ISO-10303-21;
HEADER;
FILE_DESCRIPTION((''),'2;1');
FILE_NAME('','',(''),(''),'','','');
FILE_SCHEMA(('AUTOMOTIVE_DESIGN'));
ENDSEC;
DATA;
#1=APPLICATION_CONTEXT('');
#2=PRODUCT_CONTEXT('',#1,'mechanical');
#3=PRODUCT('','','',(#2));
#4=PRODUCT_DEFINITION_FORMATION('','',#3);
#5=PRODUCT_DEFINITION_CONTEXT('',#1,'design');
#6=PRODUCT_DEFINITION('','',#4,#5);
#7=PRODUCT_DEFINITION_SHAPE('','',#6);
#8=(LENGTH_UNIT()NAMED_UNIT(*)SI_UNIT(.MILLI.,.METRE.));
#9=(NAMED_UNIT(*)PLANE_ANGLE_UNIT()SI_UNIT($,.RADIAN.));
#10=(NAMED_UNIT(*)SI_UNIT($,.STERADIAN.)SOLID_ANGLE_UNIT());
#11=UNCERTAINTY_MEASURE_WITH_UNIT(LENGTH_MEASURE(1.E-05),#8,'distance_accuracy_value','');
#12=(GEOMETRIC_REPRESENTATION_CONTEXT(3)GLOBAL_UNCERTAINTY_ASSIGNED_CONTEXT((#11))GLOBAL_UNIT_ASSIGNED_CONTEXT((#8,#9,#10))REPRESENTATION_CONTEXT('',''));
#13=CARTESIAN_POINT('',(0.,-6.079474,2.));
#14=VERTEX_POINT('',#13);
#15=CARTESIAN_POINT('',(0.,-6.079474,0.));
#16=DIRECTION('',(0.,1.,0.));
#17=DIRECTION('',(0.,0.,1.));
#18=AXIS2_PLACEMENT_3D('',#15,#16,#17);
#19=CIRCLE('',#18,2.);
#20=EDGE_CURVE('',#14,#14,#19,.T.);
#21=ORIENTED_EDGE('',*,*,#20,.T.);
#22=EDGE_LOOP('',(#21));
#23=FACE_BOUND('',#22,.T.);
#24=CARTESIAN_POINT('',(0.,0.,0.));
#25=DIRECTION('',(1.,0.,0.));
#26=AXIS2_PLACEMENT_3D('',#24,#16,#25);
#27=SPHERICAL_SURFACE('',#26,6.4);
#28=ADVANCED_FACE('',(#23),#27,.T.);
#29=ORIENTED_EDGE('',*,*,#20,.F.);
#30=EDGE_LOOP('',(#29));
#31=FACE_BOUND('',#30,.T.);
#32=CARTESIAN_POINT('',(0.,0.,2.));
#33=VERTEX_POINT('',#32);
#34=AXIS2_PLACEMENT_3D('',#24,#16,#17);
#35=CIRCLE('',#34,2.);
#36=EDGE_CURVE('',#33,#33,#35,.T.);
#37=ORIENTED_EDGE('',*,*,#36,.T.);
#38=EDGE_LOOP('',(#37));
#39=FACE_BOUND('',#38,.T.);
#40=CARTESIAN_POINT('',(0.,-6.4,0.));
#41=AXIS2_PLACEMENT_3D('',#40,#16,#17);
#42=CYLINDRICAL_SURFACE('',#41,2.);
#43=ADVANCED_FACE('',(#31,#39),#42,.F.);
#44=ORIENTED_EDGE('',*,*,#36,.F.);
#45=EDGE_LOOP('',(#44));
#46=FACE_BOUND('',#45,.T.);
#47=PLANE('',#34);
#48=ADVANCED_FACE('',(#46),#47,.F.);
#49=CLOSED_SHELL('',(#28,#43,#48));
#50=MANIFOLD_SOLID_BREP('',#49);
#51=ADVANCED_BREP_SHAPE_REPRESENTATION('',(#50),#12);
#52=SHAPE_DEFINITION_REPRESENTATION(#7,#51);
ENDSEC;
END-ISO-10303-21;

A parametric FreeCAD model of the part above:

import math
import FreeCAD as App
import Part
import Sketcher
from FreeCAD import Vector
Q = App.Units.Quantity

doc = App.newDocument("Part")
body = doc.addObject("PartDesign::Body", "Body")

sketch1 = body.newObject("Sketcher::SketchObject", "Sketch")
sketch1.AttachmentSupport = (doc.getObject("XY_Plane"), [""])
sketch1.MapMode = "FlatFace"
sketch1.addGeometry([
    Part.LineSegment(Vector(0, 6.4, 0), Vector(0, -6.4, 0)),
    Part.ArcOfCircle(Part.Circle(Vector(0, 0, 0), Vector(0, 0, 1), 6.4), math.radians(-90), math.radians(90)),
], False)
sketch1.addConstraint([
    Sketcher.Constraint("Coincident", 0, 1, 1, 2),
    Sketcher.Constraint("Coincident", 1, 1, 0, 2),
    Sketcher.Constraint("Vertical", 0),
    Sketcher.Constraint("Coincident", 1, 3, -1, 1),
    Sketcher.Constraint("PointOnObject", 0, 1, -2),
    Sketcher.Constraint("Radius", 1, Q("6.4 mm")),
])
revolution = body.newObject("PartDesign::Revolution", "Revolution")
revolution.Profile = sketch1
revolution.ReferenceAxis = (sketch1, ["V_Axis"])
revolution.Angle = 360

sketch2 = body.newObject("Sketcher::SketchObject", "Sketch001")
sketch2.AttachmentSupport = (doc.getObject("XZ_Plane"), [""])
sketch2.MapMode = "FlatFace"
sketch2.addGeometry(Part.Circle(Vector(0, 0, 0), Vector(0, 0, 1), 2), False)
sketch2.addConstraint([
    Sketcher.Constraint("Coincident", 0, 3, -1, 1),
    Sketcher.Constraint("Diameter", 0, Q("4 mm")),
])
pocket1 = body.newObject("PartDesign::Pocket", "Pocket")
pocket1.Profile = sketch2
pocket1.Type = "ThroughAll"
pocket1.Reversed = True

doc.recompute()
